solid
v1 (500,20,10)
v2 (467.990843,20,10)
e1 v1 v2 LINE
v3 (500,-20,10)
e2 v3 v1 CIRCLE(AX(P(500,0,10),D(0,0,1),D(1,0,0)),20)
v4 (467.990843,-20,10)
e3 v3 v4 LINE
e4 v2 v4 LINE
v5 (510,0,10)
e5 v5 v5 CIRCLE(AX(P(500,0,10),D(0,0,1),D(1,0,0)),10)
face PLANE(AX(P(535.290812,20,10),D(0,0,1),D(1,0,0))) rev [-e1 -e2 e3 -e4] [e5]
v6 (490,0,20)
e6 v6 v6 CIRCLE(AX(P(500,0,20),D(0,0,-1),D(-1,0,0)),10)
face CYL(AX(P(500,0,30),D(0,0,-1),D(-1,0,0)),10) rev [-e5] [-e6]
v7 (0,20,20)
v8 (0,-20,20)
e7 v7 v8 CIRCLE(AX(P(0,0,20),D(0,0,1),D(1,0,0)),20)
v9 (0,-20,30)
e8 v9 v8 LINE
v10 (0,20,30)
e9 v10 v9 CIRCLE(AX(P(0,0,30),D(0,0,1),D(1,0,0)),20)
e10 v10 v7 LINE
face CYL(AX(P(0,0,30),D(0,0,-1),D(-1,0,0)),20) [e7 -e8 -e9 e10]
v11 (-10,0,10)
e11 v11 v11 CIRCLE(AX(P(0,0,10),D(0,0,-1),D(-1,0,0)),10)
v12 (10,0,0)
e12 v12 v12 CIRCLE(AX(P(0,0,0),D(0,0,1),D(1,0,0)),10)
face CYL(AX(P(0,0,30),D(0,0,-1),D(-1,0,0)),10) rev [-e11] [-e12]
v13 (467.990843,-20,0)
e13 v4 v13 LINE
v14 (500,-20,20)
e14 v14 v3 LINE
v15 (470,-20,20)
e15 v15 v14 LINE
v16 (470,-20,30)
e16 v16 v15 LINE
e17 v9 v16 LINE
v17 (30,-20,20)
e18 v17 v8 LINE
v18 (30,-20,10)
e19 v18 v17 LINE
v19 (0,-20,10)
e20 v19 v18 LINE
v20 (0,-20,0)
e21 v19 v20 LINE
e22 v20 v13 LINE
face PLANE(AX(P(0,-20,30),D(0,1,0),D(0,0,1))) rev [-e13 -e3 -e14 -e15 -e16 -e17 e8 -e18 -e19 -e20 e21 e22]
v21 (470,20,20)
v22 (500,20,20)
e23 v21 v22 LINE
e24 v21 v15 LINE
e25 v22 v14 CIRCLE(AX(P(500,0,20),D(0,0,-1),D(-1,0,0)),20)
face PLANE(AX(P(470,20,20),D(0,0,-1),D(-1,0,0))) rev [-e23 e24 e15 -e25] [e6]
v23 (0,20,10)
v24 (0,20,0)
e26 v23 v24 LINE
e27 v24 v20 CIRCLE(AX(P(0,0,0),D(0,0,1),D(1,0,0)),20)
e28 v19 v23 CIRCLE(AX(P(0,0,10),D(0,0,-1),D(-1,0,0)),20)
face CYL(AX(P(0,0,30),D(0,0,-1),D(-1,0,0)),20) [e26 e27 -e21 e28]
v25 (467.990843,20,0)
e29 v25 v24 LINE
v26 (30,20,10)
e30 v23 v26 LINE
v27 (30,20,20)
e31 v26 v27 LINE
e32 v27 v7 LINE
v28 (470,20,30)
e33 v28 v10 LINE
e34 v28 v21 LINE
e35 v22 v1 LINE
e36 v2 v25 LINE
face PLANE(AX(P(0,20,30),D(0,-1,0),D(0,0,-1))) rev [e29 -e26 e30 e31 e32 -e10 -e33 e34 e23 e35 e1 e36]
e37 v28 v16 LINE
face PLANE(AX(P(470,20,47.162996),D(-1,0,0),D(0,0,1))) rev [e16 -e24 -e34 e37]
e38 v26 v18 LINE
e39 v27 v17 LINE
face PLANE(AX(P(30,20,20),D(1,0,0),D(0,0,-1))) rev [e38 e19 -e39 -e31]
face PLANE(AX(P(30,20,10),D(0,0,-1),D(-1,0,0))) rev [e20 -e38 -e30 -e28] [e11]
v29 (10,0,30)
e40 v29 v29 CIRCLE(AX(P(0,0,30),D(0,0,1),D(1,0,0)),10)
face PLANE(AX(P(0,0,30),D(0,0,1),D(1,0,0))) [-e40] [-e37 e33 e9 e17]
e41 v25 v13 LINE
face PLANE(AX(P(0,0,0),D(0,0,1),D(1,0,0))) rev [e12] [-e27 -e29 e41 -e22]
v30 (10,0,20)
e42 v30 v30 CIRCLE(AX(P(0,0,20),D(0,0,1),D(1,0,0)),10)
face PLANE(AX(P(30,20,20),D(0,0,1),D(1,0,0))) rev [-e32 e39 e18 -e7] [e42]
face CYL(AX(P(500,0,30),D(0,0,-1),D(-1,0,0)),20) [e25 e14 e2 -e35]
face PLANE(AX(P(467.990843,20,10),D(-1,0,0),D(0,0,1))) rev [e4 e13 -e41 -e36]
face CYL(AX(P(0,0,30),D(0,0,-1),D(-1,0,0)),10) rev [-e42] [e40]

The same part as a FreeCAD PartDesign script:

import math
import FreeCAD as App
import Part
import Sketcher
Q = App.Units.Quantity

doc = App.newDocument("Part")
params = doc.addObject("Spreadsheet::Sheet", "Params")
for row, (alias, value) in enumerate([
    ("sketch1_diameter", "20 mm"),
    ("sketch1_radius", "20 mm"),
    ("sketch1_width", "500 mm"),
    ("pad1_length", "30 mm"),
    ("sketch2_height", "10 mm"),
], start=1):
    params.set(f"A{row}", alias)
    params.set(f"B{row}", "=" + value)
    params.setAlias(f"B{row}", alias)

body = doc.addObject("PartDesign::Body", "Body")

# Sketch on XY plane
sketch1 = body.newObject("Sketcher::SketchObject", "Sketch")
sketch1.AttachmentSupport = (doc.getObject("XY_Plane"), [""])
sketch1.MapMode = "FlatFace"
sketch1.addGeometry([
    Part.LineSegment(App.Vector(500, 20, 0), App.Vector(0, 20, 0)),  # 0
    Part.ArcOfCircle(Part.Circle(App.Vector(0, 0, 0), App.Vector(0, 0, 1), 20), math.radians(90), math.radians(270)),  # 1
    Part.LineSegment(App.Vector(0, -20, 0), App.Vector(500, -20, 0)),  # 2
    Part.ArcOfCircle(Part.Circle(App.Vector(500, 0, 0), App.Vector(0, 0, 1), 20), math.radians(-90), math.radians(90)),  # 3
    Part.Circle(App.Vector(500, 0, 0), App.Vector(0, 0, 1), 10),  # 4
    Part.Circle(App.Vector(0, 0, 0), App.Vector(0, 0, 1), 10),  # 5
], False)
sketch1.addConstraint([
    Sketcher.Constraint("Tangent", 0, 2, 1, 1),
    Sketcher.Constraint("Tangent", 1, 2, 2, 1),
    Sketcher.Constraint("Tangent", 2, 2, 3, 1),
    Sketcher.Constraint("Tangent", 3, 2, 0, 1),
    Sketcher.Constraint("Horizontal", 0),
    Sketcher.Constraint("Horizontal", 2),
    Sketcher.Constraint("Coincident", 1, 3, -1, 1),
    Sketcher.Constraint("Coincident", 5, 3, -1, 1),
    Sketcher.Constraint("Coincident", 4, 3, 3, 3),
    Sketcher.Constraint("Equal", 4, 5),
    Sketcher.Constraint("Diameter", 4, Q("20 mm")),
    Sketcher.Constraint("Radius", 1, Q("20 mm")),
    Sketcher.Constraint("DistanceX", 0, 2, 0, 1, Q("500 mm")),
])
sketch1.setExpression("Constraints[10]", "Params.sketch1_diameter")
sketch1.setExpression("Constraints[11]", "Params.sketch1_radius")
sketch1.setExpression("Constraints[12]", "Params.sketch1_width")
pad1 = body.newObject("PartDesign::Pad", "Pad")
pad1.Profile = sketch1
pad1.setExpression("Length", "Params.pad1_length")

# Sketch on XZ plane
sketch2 = body.newObject("Sketcher::SketchObject", "Sketch001")
sketch2.AttachmentSupport = (doc.getObject("XZ_Plane"), [""])
sketch2.MapMode = "FlatFace"
sketch2.AttachmentOffset = App.Placement(App.Vector(0, 0, 20), App.Rotation())
sketch2.addGeometry([
    Part.LineSegment(App.Vector(-40, 20, 0), App.Vector(-40, 10, 0)),  # 0
    Part.LineSegment(App.Vector(-40, 10, 0), App.Vector(30, 10, 0)),  # 1
    Part.LineSegment(App.Vector(30, 10, 0), App.Vector(30, 20, 0)),  # 2
    Part.LineSegment(App.Vector(30, 20, 0), App.Vector(-40, 20, 0)),  # 3
    Part.LineSegment(App.Vector(470, 47, 0), App.Vector(470, 20, 0)),  # 4
    Part.LineSegment(App.Vector(470, 20, 0), App.Vector(535, 20, 0)),  # 5
    Part.LineSegment(App.Vector(535, 20, 0), App.Vector(535, 10, 0)),  # 6
    Part.LineSegment(App.Vector(535, 10, 0), App.Vector(468, 10, 0)),  # 7
    Part.LineSegment(App.Vector(468, 10, 0), App.Vector(468, -16, 0)),  # 8
    Part.LineSegment(App.Vector(468, -16, 0), App.Vector(553, -16, 0)),  # 9
    Part.LineSegment(App.Vector(553, -16, 0), App.Vector(553, 47, 0)),  # 10
    Part.LineSegment(App.Vector(553, 47, 0), App.Vector(470, 47, 0)),  # 11
], False)
sketch2.addConstraint([
    Sketcher.Constraint("Coincident", 0, 2, 1, 1),
    Sketcher.Constraint("Coincident", 1, 2, 2, 1),
    Sketcher.Constraint("Coincident", 2, 2, 3, 1),
    Sketcher.Constraint("Coincident", 3, 2, 0, 1),
    Sketcher.Constraint("Coincident", 4, 2, 5, 1),
    Sketcher.Constraint("Coincident", 5, 2, 6, 1),
    Sketcher.Constraint("Coincident", 6, 2, 7, 1),
    Sketcher.Constraint("Coincident", 7, 2, 8, 1),
    Sketcher.Constraint("Coincident", 8, 2, 9, 1),
    Sketcher.Constraint("Coincident", 9, 2, 10, 1),
    Sketcher.Constraint("Coincident", 10, 2, 11, 1),
    Sketcher.Constraint("Coincident", 11, 2, 4, 1),
    Sketcher.Constraint("Vertical", 0),
    Sketcher.Constraint("Horizontal", 1),
    Sketcher.Constraint("Vertical", 2),
    Sketcher.Constraint("Horizontal", 3),
    Sketcher.Constraint("Vertical", 4),
    Sketcher.Constraint("Horizontal", 5),
    Sketcher.Constraint("Vertical", 6),
    Sketcher.Constraint("Horizontal", 7),
    Sketcher.Constraint("Vertical", 8),
    Sketcher.Constraint("Horizontal", 9),
    Sketcher.Constraint("Vertical", 10),
    Sketcher.Constraint("Horizontal", 11),
    Sketcher.Constraint("Horizontal", 3, 2, 4, 2),
    Sketcher.Constraint("Horizontal", 1, 2, 6, 2),
    Sketcher.Constraint("DistanceY", 0, 2, 0, 1, Q("10 mm")),
    Sketcher.Constraint("DistanceY", -1, 1, 0, 2, Q("10 mm")),
    Sketcher.Constraint("DistanceX", -1, 1, 1, 2, Q("30 mm")),
    Sketcher.Constraint("DistanceX", -1, 1, 4, 2, Q("470 mm")),
    Sketcher.Constraint("DistanceY", 8, 2, 8, 1, Q("25.7955 mm")),
    Sketcher.Constraint("DistanceX", 5, 1, 5, 2, Q("65.290812 mm")),
    Sketcher.Constraint("DistanceX", 7, 2, 7, 1, Q("67.299969 mm")),
    Sketcher.Constraint("DistanceX", 11, 2, 11, 1, Q("83.153389 mm")),
    Sketcher.Constraint("DistanceX", 1, 1, 1, 2, Q("69.930145 mm")),
    Sketcher.Constraint("DistanceY", 4, 2, 4, 1, Q("27.162996 mm")),
])
sketch2.setExpression("Constraints[26]", "Params.sketch2_height")
pocket1 = body.newObject("PartDesign::Pocket", "Pocket")
pocket1.Profile = sketch2
pocket1.Type = "ThroughAll"

doc.recompute()
